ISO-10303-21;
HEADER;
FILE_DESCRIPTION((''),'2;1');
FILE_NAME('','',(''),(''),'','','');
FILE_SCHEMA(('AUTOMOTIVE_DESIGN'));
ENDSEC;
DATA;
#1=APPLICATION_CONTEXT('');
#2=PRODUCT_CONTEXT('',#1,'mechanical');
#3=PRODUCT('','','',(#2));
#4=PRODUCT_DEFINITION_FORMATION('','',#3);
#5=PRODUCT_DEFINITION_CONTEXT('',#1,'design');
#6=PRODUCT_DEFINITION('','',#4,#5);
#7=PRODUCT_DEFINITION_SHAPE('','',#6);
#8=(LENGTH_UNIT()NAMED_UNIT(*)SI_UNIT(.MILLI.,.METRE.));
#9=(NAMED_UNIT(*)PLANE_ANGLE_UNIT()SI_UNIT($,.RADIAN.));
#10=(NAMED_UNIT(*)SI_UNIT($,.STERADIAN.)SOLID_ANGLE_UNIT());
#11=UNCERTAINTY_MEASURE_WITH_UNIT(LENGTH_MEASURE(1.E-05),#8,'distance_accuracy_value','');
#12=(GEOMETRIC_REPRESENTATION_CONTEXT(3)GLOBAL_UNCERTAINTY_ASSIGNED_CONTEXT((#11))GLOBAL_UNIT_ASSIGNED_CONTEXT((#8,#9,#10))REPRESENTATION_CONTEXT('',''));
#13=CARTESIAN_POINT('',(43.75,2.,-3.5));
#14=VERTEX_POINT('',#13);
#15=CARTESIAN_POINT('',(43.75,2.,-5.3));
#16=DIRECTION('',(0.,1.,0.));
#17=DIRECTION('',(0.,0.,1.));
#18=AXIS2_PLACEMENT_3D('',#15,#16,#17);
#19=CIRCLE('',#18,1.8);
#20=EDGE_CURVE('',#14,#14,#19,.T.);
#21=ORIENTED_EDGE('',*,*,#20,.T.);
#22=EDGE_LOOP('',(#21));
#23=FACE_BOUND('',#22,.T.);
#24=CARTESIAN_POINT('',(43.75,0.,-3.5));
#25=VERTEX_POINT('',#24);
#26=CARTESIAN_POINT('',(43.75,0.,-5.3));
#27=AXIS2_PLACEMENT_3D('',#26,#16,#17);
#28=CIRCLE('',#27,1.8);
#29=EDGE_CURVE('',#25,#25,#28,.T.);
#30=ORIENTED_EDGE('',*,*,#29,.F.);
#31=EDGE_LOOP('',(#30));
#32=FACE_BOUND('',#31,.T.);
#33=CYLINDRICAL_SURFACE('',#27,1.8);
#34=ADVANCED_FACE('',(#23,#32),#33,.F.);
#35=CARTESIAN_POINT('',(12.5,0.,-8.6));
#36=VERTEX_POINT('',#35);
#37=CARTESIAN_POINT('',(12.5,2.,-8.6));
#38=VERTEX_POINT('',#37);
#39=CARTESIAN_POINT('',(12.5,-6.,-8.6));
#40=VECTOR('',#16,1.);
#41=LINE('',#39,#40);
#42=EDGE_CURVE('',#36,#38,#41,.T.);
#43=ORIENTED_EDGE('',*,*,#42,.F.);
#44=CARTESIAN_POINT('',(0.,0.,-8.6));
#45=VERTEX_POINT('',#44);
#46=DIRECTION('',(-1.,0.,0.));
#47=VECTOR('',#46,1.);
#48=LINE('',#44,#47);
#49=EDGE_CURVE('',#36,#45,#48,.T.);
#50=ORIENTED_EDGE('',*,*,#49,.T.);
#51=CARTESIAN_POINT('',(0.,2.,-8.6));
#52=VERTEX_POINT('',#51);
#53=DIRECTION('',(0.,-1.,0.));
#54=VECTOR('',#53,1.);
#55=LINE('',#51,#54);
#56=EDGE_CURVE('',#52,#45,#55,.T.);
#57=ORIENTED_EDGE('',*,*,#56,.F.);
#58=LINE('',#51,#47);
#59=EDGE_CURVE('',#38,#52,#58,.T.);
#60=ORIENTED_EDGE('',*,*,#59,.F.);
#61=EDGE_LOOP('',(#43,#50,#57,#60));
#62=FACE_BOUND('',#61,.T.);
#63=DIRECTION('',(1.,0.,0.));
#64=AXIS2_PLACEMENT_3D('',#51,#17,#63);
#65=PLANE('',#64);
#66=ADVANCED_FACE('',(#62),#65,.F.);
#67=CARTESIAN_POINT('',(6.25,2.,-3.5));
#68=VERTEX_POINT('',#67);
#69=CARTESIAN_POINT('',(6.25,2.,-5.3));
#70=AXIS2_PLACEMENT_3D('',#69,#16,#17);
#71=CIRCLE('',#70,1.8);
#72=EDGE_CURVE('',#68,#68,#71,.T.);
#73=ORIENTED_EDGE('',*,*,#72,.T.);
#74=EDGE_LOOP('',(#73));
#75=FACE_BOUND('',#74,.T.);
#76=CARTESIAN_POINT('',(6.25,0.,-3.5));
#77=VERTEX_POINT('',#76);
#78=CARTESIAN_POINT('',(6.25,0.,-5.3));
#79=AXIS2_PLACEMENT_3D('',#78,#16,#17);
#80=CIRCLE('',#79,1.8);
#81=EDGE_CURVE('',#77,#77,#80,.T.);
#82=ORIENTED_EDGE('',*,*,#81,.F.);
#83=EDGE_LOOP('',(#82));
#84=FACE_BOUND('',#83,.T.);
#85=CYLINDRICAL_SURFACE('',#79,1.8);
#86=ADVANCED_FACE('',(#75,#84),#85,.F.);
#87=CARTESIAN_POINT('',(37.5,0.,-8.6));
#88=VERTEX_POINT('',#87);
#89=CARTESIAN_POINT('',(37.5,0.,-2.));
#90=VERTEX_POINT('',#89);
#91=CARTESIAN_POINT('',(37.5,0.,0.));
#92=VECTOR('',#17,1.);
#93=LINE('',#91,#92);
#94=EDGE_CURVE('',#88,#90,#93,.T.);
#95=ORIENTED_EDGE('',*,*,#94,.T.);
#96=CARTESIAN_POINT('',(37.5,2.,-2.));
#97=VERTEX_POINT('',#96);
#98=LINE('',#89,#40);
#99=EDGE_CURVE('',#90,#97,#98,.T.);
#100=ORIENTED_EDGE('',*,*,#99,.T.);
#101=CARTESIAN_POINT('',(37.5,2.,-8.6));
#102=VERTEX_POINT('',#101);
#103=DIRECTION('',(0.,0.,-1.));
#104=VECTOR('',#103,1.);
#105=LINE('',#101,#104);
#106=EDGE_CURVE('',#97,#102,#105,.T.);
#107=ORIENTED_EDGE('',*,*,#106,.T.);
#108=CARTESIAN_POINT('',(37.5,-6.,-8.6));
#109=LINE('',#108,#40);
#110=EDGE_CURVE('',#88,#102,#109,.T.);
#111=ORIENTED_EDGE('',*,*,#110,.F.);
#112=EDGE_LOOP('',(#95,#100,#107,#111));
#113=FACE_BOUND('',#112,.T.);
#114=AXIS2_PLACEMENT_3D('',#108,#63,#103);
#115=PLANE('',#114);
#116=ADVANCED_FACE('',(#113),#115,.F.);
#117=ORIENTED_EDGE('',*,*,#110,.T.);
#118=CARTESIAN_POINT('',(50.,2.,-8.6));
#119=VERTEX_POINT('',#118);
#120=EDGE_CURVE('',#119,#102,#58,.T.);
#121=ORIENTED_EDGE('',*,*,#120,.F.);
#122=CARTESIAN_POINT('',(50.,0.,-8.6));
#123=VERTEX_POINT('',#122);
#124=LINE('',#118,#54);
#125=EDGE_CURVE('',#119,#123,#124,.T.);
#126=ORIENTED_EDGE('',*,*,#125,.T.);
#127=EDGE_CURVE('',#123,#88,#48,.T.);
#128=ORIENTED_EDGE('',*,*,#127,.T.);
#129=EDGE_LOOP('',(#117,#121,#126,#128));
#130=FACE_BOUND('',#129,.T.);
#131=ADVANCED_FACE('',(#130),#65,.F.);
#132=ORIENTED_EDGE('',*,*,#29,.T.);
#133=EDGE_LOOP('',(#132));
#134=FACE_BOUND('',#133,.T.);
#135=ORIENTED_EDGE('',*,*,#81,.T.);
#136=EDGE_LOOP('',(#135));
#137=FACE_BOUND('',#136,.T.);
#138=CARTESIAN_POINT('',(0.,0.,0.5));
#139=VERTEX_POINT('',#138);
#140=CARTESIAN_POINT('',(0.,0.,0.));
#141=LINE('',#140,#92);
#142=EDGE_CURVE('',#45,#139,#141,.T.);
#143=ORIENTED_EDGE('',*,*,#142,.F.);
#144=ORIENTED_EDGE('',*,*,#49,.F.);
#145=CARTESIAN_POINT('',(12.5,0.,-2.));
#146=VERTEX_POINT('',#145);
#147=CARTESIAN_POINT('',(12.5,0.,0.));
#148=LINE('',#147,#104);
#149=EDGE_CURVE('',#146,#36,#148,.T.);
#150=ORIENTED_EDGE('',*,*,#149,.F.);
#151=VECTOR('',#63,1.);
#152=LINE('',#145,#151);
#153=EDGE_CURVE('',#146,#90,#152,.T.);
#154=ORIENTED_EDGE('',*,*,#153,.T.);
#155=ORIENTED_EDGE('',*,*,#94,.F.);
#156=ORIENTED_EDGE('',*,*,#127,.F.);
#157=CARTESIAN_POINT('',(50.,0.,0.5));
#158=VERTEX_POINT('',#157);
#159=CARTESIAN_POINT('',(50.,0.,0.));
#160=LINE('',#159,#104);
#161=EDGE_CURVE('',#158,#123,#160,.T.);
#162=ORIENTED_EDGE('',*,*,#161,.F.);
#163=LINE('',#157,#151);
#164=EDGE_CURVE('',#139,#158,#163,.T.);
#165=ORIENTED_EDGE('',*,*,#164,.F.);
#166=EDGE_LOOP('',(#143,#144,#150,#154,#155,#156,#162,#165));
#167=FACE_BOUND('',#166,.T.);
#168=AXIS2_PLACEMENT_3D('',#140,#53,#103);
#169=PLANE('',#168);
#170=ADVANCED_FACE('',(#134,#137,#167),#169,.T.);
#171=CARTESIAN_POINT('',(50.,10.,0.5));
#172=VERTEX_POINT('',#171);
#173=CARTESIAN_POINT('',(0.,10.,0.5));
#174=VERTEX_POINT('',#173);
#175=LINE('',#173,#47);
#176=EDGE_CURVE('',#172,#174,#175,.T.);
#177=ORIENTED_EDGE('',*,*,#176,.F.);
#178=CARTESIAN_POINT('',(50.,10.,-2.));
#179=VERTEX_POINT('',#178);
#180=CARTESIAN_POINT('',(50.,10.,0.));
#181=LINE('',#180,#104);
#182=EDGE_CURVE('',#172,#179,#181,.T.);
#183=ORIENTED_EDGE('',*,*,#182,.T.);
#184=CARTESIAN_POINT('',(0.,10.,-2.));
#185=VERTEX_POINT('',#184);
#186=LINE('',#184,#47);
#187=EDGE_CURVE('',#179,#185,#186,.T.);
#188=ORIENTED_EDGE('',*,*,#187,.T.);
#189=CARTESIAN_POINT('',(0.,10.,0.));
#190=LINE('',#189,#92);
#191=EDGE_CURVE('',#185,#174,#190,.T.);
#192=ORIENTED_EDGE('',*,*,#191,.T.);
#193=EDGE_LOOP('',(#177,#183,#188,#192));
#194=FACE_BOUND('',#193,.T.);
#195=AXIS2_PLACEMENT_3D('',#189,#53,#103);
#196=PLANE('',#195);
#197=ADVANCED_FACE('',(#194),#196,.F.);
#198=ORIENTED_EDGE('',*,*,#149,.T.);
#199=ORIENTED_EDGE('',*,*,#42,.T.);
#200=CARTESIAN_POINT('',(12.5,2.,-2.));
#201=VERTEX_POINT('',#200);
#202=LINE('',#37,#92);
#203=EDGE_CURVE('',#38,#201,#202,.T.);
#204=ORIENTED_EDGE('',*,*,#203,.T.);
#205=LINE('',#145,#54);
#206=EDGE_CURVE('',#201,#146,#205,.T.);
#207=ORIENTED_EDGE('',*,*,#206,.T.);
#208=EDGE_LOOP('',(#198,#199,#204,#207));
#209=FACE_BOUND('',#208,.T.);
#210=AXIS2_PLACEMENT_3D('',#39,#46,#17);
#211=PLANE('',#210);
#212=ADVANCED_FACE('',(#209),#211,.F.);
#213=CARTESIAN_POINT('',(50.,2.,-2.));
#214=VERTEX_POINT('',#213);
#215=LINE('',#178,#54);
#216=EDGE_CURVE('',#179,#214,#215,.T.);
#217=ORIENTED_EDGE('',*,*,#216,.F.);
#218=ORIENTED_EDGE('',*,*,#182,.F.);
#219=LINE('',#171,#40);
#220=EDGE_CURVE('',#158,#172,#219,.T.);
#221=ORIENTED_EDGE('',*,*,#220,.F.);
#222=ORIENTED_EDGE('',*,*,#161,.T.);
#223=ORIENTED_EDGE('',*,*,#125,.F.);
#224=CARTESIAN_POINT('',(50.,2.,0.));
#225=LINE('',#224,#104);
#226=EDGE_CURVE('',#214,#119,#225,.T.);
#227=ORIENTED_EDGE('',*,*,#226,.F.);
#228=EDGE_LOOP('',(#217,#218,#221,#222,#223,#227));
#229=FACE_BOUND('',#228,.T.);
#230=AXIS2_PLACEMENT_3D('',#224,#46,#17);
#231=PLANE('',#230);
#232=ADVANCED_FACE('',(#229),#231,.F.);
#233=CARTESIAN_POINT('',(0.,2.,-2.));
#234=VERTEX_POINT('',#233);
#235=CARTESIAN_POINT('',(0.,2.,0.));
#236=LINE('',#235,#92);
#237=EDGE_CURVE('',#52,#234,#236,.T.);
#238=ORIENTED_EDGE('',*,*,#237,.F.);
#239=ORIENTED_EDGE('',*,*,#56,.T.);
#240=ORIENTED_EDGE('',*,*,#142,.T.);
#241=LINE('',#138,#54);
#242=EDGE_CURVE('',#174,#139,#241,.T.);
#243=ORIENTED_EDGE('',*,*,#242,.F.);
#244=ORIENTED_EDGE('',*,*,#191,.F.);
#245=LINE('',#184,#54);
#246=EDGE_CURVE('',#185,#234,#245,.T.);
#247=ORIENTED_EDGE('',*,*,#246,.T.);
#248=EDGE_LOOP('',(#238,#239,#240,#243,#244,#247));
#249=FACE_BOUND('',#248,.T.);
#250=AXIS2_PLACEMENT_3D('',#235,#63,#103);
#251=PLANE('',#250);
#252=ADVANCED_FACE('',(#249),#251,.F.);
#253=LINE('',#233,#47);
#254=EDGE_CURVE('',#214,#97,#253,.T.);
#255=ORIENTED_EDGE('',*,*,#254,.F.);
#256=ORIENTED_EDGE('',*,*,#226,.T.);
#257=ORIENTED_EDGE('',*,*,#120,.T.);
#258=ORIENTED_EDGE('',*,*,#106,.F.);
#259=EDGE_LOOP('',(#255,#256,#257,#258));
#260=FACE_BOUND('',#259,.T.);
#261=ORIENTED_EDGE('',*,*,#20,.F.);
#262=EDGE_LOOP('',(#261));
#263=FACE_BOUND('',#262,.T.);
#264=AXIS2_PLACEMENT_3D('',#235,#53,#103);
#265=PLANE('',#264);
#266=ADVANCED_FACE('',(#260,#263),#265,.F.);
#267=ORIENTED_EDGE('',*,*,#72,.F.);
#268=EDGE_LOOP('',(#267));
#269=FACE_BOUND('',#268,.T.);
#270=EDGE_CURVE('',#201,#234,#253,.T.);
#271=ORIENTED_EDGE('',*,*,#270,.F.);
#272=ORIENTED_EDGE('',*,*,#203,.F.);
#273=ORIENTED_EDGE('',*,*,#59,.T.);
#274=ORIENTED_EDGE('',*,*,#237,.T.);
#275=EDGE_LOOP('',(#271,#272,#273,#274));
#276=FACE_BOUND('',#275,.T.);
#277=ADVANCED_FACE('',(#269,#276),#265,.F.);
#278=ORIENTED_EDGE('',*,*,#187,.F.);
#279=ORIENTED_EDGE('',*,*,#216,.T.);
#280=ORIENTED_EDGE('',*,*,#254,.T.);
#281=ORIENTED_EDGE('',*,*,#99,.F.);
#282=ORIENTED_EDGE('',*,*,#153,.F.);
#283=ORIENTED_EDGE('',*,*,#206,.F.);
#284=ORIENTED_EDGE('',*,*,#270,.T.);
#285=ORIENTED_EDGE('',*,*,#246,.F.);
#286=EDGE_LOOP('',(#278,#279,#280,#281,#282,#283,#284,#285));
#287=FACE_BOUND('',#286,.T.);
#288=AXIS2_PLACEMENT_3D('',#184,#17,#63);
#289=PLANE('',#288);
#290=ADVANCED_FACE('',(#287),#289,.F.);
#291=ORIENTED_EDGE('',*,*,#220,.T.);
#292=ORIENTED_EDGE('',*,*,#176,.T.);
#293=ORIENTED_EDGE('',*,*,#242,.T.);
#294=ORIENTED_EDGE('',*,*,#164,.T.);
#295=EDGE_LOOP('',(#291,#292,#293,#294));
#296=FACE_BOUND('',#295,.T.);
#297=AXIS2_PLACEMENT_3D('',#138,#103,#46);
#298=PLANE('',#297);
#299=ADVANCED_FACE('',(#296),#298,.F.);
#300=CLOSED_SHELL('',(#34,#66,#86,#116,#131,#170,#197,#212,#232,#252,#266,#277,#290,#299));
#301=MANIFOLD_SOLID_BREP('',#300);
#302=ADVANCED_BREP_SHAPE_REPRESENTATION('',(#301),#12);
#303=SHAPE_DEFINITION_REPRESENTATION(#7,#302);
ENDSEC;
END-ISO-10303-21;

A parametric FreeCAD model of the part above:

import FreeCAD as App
import Part
import Sketcher
from FreeCAD import Vector
Q = App.Units.Quantity


def add_polygon(sketch, points):
    """Adds a closed chain of lines whose ends are joined by coincident constraints."""
    first, n = sketch.GeometryCount, len(points)
    for a, b in zip(points, points[1:] + points[:1]):
        sketch.addGeometry(Part.LineSegment(App.Vector(*a, 0), App.Vector(*b, 0)), False)
    for i in range(n):
        sketch.addConstraint(Sketcher.Constraint("Coincident", first + i, 2, first + (i + 1) % n, 1))

doc = App.newDocument("Part")
body = doc.addObject("PartDesign::Body", "Body")

# Sketch on XZ plane
sketch1 = body.newObject("Sketcher::SketchObject", "Sketch")
sketch1.AttachmentSupport = (doc.getObject("XZ_Plane"), [""])
sketch1.MapMode = "FlatFace"
add_polygon(sketch1, [(0, -8.6), (0, 0), (50, 0), (50, -8.6)])  # lines 0-3
sketch1.addConstraint([
    Sketcher.Constraint("Vertical", 0),
    Sketcher.Constraint("Horizontal", 1),
    Sketcher.Constraint("Vertical", 2),
    Sketcher.Constraint("Horizontal", 3),
    Sketcher.Constraint("Coincident", 0, 2, -1, 1),
    Sketcher.Constraint("DistanceX", 1, 1, 1, 2, Q("50 mm")),
    Sketcher.Constraint("DistanceY", 0, 1, 0, 2, Q("8.6 mm")),
])
pad1 = body.newObject("PartDesign::Pad", "Pad")
pad1.Profile = sketch1
pad1.Length = 2
pad1.Reversed = True

# Sketch on XZ plane
sketch2 = body.newObject("Sketcher::SketchObject", "Sketch001")
sketch2.AttachmentSupport = (doc.getObject("XZ_Plane"), [""])
sketch2.MapMode = "FlatFace"
sketch2.AttachmentOffset = App.Placement(Vector(0, 0, -2), App.Rotation())
add_polygon(sketch2, [(0, -2), (0, 0), (50, 0), (50, -2)])  # lines 0-3
sketch2.addConstraint([
    Sketcher.Constraint("Vertical", 0),
    Sketcher.Constraint("Horizontal", 1),
    Sketcher.Constraint("Vertical", 2),
    Sketcher.Constraint("Horizontal", 3),
    Sketcher.Constraint("Coincident", 0, 2, -1, 1),
    Sketcher.Constraint("DistanceX", 1, 1, 1, 2, Q("50 mm")),
    Sketcher.Constraint("DistanceY", 0, 1, 0, 2, Q("2 mm")),
])
pad2 = body.newObject("PartDesign::Pad", "Pad001")
pad2.Profile = sketch2
pad2.Length = 8
pad2.Reversed = True

# Sketch on XZ plane
sketch3 = body.newObject("Sketcher::SketchObject", "Sketch002")
sketch3.AttachmentSupport = (doc.getObject("XZ_Plane"), [""])
sketch3.MapMode = "FlatFace"
sketch3.AttachmentOffset = App.Placement(Vector(0, 0, -2), App.Rotation())
add_polygon(sketch3, [(12.5, -8.6), (12.5, -2), (37.5, -2), (37.5, -8.6)])  # lines 0-3
sketch3.addConstraint([
    Sketcher.Constraint("Vertical", 0),
    Sketcher.Constraint("Horizontal", 1),
    Sketcher.Constraint("Vertical", 2),
    Sketcher.Constraint("Horizontal", 3),
    Sketcher.Constraint("DistanceX", 1, 1, 1, 2, Q("25 mm")),
    Sketcher.Constraint("DistanceY", 0, 1, 0, 2, Q("6.6 mm")),
    Sketcher.Constraint("DistanceY", 0, 2, -1, 1, Q("2 mm")),
    Sketcher.Constraint("DistanceX", -1, 1, 0, 2, Q("12.5 mm")),
])
pocket1 = body.newObject("PartDesign::Pocket", "Pocket")
pocket1.Profile = sketch3
pocket1.Length = 8
pocket1.Reversed = True

# Sketch on XY plane
sketch4 = body.newObject("Sketcher::SketchObject", "Sketch003")
sketch4.AttachmentSupport = (doc.getObject("XY_Plane"), [""])
sketch4.MapMode = "FlatFace"
sketch4.AttachmentOffset = App.Placement(Vector(0, 0, -2), App.Rotation())
add_polygon(sketch4, [(37.5, 2), (37.5, 0), (12.5, 0), (12.5, 2)])  # lines 0-3
sketch4.addConstraint([
    Sketcher.Constraint("Vertical", 0),
    Sketcher.Constraint("Horizontal", 1),
    Sketcher.Constraint("Vertical", 2),
    Sketcher.Constraint("Horizontal", 3),
    Sketcher.Constraint("PointOnObject", 0, 2, -1),
    Sketcher.Constraint("DistanceX", 1, 2, 1, 1, Q("25 mm")),
    Sketcher.Constraint("DistanceY", 0, 2, 0, 1, Q("2 mm")),
    Sketcher.Constraint("DistanceX", -1, 1, 0, 2, Q("37.5 mm")),
])
pocket2 = body.newObject("PartDesign::Pocket", "Pocket001")
pocket2.Profile = sketch4
pocket2.Length = 2
pocket2.Reversed = True

# Sketch on XZ plane
sketch5 = body.newObject("Sketcher::SketchObject", "Sketch004")
sketch5.AttachmentSupport = (doc.getObject("XZ_Plane"), [""])
sketch5.MapMode = "FlatFace"
sketch5.AttachmentOffset = App.Placement(Vector(0, 0, -2), App.Rotation())
sketch5.addGeometry([
    Part.Circle(Vector(43.75, -5.3, 0), Vector(0, 0, 1), 1.8),
    Part.Circle(Vector(6.25, -5.3, 0), Vector(0, 0, 1), 1.8),
], False)
sketch5.addConstraint([
    Sketcher.Constraint("Equal", 0, 1),
    Sketcher.Constraint("Horizontal", 0, 3, 1, 3),
    Sketcher.Constraint("Diameter", 0, Q("3.6 mm")),
    Sketcher.Constraint("DistanceY", 0, 3, -1, 1, Q("5.3 mm")),
    Sketcher.Constraint("DistanceX", 1, 3, 0, 3, Q("37.5 mm")),
    Sketcher.Constraint("DistanceX", -1, 1, 0, 3, Q("43.75 mm")),
])
pocket3 = body.newObject("PartDesign::Pocket", "Pocket002")
pocket3.Profile = sketch5
pocket3.Length = 2
pocket3.Reversed = True

# Sketch on XY plane
sketch6 = body.newObject("Sketcher::SketchObject", "Sketch005")
sketch6.AttachmentSupport = (doc.getObject("XY_Plane"), [""])
sketch6.MapMode = "FlatFace"
add_polygon(sketch6, [(0, 0), (12.5, 0), (12.5, 2), (37.5, 2), (37.5, 0), (50, 0), (50, 10), (0, 10)])  # lines 0-7
sketch6.addConstraint([
    Sketcher.Constraint("Horizontal", 0),
    Sketcher.Constraint("Vertical", 1),
    Sketcher.Constraint("Horizontal", 2),
    Sketcher.Constraint("Vertical", 3),
    Sketcher.Constraint("Horizontal", 4),
    Sketcher.Constraint("Vertical", 5),
    Sketcher.Constraint("Horizontal", 6),
    Sketcher.Constraint("Vertical", 7),
    Sketcher.Constraint("Coincident", 7, 2, -1, 1),
    Sketcher.Constraint("PointOnObject", 3, 2, -1),
    Sketcher.Constraint("Equal", 0, 4),
    Sketcher.Constraint("DistanceX", 2, 1, 2, 2, Q("25 mm")),
    Sketcher.Constraint("DistanceX", 6, 2, 6, 1, Q("50 mm")),
    Sketcher.Constraint("DistanceY", 1, 1, 1, 2, Q("2 mm")),
    Sketcher.Constraint("DistanceY", 5, 1, 5, 2, Q("10 mm")),
])
pad3 = body.newObject("PartDesign::Pad", "Pad002")
pad3.Profile = sketch6
pad3.Length = 0.5

# Sketch on XY plane
sketch7 = body.newObject("Sketcher::SketchObject", "Sketch006")
sketch7.AttachmentSupport = (doc.getObject("XY_Plane"), [""])
sketch7.MapMode = "FlatFace"
sketch7.AttachmentOffset = App.Placement(Vector(0, 0, 0.5), App.Rotation())
add_polygon(sketch7, [(12.5, 2), (12.5, 0), (37.5, 0), (37.5, 2)])  # lines 0-3
sketch7.addConstraint([
    Sketcher.Constraint("Vertical", 0),
    Sketcher.Constraint("Horizontal", 1),
    Sketcher.Constraint("Vertical", 2),
    Sketcher.Constraint("Horizontal", 3),
    Sketcher.Constraint("PointOnObject", 0, 2, -1),
    Sketcher.Constraint("DistanceX", 1, 1, 1, 2, Q("25 mm")),
    Sketcher.Constraint("DistanceY", 0, 2, 0, 1, Q("2 mm")),
    Sketcher.Constraint("DistanceX", -1, 1, 0, 2, Q("12.5 mm")),
])
pad4 = body.newObject("PartDesign::Pad", "Pad003")
pad4.Profile = sketch7
pad4.Length = 2.5
pad4.Reversed = True

doc.recompute()
